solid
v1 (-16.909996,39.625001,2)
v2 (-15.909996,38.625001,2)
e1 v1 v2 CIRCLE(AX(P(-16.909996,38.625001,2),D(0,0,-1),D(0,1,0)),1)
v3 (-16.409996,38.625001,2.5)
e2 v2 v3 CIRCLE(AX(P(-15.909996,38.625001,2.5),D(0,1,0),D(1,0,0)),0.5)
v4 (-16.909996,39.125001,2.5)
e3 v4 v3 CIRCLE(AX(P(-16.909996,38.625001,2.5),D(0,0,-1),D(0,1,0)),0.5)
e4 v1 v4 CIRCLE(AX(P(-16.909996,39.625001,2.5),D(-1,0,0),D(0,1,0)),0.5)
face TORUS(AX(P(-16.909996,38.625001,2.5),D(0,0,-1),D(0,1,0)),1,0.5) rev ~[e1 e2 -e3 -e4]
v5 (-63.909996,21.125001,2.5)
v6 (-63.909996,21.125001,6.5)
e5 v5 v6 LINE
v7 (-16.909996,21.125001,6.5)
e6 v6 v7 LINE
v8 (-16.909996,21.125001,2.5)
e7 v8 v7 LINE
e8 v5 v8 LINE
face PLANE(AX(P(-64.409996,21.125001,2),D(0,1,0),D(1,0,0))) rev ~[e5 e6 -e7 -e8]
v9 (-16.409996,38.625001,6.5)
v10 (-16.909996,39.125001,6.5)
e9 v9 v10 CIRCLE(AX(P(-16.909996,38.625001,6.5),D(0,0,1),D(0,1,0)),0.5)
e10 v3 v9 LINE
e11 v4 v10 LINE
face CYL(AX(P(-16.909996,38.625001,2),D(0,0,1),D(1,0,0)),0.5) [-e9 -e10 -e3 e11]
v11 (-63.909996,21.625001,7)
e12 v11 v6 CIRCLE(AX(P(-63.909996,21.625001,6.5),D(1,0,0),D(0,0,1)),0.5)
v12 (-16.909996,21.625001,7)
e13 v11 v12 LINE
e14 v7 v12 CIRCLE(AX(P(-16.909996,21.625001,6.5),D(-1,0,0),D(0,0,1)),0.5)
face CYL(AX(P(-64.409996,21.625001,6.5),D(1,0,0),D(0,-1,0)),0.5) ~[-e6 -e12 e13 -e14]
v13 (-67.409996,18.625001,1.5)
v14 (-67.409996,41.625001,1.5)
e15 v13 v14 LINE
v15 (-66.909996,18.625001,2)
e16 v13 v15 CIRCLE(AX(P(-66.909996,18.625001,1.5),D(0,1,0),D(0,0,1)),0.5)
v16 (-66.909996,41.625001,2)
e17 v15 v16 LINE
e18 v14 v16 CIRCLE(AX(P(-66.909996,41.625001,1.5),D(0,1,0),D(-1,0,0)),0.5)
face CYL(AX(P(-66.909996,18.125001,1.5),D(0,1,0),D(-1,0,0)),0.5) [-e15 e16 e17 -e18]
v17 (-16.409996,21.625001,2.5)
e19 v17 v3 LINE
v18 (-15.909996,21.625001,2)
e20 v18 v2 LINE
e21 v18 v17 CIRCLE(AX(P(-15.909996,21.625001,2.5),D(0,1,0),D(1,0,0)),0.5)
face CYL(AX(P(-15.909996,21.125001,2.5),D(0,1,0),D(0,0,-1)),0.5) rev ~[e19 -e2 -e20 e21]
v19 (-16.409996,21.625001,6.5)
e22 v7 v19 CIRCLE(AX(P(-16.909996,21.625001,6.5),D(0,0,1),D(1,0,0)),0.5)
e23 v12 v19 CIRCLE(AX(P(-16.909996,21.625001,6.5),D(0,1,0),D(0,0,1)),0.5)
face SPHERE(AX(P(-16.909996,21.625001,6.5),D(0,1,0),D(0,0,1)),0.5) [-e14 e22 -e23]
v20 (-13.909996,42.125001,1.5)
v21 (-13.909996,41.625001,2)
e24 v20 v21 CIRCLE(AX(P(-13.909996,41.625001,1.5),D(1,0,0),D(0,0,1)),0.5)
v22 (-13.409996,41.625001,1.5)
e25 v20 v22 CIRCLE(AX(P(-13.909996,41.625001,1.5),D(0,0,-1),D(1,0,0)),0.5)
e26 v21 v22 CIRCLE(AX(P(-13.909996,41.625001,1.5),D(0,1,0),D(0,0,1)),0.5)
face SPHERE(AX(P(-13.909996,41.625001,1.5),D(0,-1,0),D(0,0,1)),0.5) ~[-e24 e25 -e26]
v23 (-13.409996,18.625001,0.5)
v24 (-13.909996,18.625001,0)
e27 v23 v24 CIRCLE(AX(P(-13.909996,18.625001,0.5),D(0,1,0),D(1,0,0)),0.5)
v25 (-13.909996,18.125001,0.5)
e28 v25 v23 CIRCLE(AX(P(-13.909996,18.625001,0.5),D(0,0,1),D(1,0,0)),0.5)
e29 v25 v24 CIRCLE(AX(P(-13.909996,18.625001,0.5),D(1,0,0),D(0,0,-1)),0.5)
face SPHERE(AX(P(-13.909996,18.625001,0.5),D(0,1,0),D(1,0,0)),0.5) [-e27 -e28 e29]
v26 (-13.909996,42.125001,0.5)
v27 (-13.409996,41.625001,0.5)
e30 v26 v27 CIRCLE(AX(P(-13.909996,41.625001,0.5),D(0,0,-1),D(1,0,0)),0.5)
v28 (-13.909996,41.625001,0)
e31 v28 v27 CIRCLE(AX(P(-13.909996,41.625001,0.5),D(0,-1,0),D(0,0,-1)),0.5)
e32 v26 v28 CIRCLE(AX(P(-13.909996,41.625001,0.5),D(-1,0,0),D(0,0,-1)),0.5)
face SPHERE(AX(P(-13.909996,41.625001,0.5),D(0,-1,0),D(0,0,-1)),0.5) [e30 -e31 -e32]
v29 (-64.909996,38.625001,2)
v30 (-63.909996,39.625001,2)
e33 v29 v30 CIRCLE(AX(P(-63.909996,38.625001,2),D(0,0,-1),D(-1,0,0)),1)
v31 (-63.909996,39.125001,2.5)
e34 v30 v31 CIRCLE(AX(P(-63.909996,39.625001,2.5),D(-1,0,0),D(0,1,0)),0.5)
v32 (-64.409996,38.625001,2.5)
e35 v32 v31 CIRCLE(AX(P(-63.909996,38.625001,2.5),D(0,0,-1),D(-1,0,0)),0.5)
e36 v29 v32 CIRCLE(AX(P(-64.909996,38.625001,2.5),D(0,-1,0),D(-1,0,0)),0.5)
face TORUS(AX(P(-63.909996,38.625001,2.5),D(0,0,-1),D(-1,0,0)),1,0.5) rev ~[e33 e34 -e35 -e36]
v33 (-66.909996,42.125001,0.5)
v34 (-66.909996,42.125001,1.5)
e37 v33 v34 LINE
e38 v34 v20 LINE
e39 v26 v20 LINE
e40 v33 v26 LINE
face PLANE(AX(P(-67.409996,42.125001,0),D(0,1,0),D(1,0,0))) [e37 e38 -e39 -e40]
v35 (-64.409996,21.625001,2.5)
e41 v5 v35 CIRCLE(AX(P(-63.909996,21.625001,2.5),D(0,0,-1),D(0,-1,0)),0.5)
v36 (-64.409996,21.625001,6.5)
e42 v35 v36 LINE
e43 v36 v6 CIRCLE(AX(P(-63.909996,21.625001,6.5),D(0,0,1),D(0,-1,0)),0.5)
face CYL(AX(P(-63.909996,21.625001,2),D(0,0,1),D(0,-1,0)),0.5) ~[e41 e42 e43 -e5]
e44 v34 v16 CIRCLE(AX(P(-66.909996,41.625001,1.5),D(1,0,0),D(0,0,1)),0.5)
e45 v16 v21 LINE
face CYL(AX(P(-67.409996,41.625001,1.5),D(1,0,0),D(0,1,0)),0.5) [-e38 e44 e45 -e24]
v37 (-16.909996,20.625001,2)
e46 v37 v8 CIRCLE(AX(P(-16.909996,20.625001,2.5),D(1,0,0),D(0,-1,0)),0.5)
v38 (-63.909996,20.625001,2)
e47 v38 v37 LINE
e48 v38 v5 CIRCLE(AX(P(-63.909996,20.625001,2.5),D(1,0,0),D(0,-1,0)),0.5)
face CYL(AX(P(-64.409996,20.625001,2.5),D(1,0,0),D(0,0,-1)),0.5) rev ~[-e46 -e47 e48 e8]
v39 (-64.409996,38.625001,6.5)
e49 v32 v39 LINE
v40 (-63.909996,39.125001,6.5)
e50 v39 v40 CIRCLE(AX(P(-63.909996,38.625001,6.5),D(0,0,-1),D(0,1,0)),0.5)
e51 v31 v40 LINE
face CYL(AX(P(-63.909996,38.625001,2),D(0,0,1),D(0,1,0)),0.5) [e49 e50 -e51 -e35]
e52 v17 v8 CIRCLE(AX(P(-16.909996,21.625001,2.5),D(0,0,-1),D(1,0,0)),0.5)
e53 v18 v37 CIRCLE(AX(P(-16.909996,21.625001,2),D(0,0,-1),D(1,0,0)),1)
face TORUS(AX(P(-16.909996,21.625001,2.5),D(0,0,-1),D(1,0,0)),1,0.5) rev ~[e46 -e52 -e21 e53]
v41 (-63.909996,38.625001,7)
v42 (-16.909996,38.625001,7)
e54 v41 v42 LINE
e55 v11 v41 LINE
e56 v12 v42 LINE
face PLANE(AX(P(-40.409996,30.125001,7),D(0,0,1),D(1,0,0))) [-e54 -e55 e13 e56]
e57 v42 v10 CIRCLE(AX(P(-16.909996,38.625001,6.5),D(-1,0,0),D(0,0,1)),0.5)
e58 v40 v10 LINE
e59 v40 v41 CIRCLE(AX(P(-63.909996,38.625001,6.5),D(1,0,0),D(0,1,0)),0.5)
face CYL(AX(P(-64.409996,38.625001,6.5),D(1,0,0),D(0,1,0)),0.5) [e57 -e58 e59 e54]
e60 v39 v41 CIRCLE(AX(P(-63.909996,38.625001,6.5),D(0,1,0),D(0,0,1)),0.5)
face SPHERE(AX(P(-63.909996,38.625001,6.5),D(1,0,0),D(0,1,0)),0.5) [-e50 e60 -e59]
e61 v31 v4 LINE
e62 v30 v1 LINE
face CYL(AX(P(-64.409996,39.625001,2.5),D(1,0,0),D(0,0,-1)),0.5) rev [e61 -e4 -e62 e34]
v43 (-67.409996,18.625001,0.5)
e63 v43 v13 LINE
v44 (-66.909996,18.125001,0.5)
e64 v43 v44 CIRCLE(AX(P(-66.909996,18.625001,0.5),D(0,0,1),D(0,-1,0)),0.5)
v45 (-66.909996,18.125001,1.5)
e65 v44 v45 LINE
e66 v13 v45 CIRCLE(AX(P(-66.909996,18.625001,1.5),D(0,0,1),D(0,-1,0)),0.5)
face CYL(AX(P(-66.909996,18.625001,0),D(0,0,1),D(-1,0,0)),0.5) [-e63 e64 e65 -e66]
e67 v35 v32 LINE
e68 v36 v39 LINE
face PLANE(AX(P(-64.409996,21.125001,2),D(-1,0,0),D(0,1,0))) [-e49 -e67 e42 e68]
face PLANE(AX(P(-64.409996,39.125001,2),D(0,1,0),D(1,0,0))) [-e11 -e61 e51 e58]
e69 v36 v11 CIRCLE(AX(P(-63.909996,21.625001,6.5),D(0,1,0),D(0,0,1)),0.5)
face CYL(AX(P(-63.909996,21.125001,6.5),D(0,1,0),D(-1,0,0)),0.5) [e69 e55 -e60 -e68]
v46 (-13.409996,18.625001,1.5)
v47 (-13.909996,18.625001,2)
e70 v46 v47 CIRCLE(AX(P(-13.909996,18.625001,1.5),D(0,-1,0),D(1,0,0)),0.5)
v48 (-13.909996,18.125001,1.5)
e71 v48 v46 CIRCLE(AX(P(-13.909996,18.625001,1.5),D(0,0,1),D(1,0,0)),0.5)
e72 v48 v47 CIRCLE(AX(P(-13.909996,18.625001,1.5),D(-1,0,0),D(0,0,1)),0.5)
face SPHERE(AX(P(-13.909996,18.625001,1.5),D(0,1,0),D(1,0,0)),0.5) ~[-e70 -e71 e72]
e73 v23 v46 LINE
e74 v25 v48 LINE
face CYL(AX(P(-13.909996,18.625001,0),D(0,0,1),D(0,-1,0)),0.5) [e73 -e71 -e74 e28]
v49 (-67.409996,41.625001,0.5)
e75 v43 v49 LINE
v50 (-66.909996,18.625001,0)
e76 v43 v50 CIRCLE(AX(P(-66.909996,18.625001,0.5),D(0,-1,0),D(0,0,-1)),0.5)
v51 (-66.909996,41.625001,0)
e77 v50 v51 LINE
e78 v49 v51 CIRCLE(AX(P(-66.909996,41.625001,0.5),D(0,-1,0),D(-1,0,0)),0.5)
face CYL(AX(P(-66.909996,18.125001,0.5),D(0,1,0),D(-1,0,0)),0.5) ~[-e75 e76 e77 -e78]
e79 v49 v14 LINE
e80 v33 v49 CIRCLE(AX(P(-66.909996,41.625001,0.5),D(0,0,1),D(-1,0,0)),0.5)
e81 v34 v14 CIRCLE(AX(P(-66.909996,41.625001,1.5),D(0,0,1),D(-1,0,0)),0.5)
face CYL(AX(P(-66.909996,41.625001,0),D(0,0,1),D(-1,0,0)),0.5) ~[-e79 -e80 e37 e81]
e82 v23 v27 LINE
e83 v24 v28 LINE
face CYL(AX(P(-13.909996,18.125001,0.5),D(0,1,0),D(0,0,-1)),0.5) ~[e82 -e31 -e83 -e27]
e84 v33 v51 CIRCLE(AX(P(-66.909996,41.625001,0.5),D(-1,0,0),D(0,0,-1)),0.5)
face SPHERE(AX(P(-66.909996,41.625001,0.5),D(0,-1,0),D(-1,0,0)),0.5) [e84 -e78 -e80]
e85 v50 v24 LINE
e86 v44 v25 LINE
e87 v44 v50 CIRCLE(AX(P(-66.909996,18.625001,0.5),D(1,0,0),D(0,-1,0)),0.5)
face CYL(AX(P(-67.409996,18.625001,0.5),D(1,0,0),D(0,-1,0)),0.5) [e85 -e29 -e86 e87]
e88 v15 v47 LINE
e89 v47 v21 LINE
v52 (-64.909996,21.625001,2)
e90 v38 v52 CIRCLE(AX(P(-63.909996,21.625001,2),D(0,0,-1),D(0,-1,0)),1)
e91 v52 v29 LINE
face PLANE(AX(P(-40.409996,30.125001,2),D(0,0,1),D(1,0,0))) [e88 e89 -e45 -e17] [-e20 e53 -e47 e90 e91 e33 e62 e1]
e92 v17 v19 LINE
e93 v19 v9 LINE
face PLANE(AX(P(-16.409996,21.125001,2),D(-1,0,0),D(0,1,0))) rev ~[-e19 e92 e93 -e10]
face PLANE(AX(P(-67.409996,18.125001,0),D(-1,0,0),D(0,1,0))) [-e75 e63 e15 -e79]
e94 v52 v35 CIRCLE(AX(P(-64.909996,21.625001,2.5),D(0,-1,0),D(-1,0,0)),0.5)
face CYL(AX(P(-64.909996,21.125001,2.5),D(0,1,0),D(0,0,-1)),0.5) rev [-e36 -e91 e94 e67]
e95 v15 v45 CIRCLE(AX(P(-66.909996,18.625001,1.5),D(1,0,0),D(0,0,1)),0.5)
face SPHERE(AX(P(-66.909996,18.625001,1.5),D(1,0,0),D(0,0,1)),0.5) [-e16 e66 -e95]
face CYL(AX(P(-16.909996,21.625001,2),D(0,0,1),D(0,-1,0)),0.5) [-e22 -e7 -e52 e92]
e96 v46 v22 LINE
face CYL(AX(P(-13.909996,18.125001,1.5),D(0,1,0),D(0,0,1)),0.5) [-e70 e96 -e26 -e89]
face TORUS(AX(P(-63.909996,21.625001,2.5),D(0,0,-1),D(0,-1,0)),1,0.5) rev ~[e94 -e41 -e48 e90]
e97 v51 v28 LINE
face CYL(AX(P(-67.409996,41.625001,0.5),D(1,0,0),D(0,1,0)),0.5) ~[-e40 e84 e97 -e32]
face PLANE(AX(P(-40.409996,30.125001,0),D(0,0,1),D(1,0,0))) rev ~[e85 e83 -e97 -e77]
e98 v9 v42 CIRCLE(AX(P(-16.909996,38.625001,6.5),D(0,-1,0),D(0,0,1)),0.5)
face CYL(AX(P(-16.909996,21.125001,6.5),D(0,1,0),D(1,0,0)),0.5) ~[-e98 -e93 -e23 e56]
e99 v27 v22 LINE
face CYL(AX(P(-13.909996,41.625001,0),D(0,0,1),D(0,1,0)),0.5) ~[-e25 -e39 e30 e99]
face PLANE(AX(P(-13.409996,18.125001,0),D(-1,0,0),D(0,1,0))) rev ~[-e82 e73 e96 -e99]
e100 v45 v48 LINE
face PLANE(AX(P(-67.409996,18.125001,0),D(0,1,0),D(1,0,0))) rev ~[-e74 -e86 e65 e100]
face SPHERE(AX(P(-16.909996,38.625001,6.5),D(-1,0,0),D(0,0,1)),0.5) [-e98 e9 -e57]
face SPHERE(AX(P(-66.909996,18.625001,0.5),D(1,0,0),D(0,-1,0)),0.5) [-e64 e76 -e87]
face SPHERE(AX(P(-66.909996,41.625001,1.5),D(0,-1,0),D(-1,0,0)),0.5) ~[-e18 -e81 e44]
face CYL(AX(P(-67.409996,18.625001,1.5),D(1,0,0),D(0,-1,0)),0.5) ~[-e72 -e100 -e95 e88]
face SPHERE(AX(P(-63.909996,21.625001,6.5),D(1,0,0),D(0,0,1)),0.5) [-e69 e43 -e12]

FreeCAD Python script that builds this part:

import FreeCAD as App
import Part
import Sketcher
Q = App.Units.Quantity


def add_polygon(sketch, points):
    """Adds a closed chain of lines whose ends are joined by coincident constraints."""
    first, n = sketch.GeometryCount, len(points)
    for a, b in zip(points, points[1:] + points[:1]):
        sketch.addGeometry(Part.LineSegment(App.Vector(*a, 0), App.Vector(*b, 0)), False)
    for i in range(n):
        sketch.addConstraint(Sketcher.Constraint("Coincident", first + i, 2, first + (i + 1) % n, 1))

doc = App.newDocument("Part")
body = doc.addObject("PartDesign::Body", "Body")

# Sketch on XY plane
sketch1 = doc.addObject("Sketcher::SketchObject", "Sketch")
body.addObject(sketch1)
sketch1.AttachmentSupport = (doc.XY_Plane, [""])
sketch1.MapMode = "FlatFace"
add_polygon(sketch1, [(-67, 42), (-67, 18), (-13, 18), (-13, 42)])  # lines 0-3
sketch1.addConstraint([
    Sketcher.Constraint("Vertical", 0),
    Sketcher.Constraint("Horizontal", 1),
    Sketcher.Constraint("Vertical", 2),
    Sketcher.Constraint("Horizontal", 3),
    Sketcher.Constraint("DistanceX", 1, 1, 1, 2, Q("54 mm")),
    Sketcher.Constraint("DistanceY", 0, 2, 0, 1, Q("24 mm")),
    Sketcher.Constraint("DistanceY", -1, 1, 0, 2, Q("18.125001 mm")),
    Sketcher.Constraint("DistanceX", 0, 2, -1, 1, Q("67.409996 mm")),
])
pad1 = doc.addObject("PartDesign::Pad", "Pad")
body.addObject(pad1)
pad1.Profile = sketch1
pad1.Length = 2

# Sketch on XY plane
sketch2 = doc.addObject("Sketcher::SketchObject", "Sketch001")
body.addObject(sketch2)
sketch2.AttachmentSupport = (doc.XY_Plane, [""])
sketch2.MapMode = "FlatFace"
sketch2.AttachmentOffset = App.Placement(App.Vector(0, 0, 2), App.Rotation())
add_polygon(sketch2, [(-64, 39), (-64, 21), (-16, 21), (-16, 39)])  # lines 0-3
sketch2.addConstraint([
    Sketcher.Constraint("Vertical", 0),
    Sketcher.Constraint("Horizontal", 1),
    Sketcher.Constraint("Vertical", 2),
    Sketcher.Constraint("Horizontal", 3),
    Sketcher.Constraint("DistanceX", 1, 1, 1, 2, Q("48 mm")),
    Sketcher.Constraint("DistanceY", 0, 2, 0, 1, Q("18 mm")),
    Sketcher.Constraint("DistanceY", -1, 1, 0, 2, Q("21.125001 mm")),
    Sketcher.Constraint("DistanceX", 0, 2, -1, 1, Q("64.409996 mm")),
])
pad2 = doc.addObject("PartDesign::Pad", "Pad001")
body.addObject(pad2)
pad2.Profile = sketch2
pad2.Length = 5
doc.recompute()

fillet = doc.addObject("PartDesign::Fillet", "Fillet")
body.addObject(fillet)
fillet.Base = (pad2, ["Edge1"])
fillet.UseAllEdges = True
fillet.Radius = 0.5

doc.recompute()
